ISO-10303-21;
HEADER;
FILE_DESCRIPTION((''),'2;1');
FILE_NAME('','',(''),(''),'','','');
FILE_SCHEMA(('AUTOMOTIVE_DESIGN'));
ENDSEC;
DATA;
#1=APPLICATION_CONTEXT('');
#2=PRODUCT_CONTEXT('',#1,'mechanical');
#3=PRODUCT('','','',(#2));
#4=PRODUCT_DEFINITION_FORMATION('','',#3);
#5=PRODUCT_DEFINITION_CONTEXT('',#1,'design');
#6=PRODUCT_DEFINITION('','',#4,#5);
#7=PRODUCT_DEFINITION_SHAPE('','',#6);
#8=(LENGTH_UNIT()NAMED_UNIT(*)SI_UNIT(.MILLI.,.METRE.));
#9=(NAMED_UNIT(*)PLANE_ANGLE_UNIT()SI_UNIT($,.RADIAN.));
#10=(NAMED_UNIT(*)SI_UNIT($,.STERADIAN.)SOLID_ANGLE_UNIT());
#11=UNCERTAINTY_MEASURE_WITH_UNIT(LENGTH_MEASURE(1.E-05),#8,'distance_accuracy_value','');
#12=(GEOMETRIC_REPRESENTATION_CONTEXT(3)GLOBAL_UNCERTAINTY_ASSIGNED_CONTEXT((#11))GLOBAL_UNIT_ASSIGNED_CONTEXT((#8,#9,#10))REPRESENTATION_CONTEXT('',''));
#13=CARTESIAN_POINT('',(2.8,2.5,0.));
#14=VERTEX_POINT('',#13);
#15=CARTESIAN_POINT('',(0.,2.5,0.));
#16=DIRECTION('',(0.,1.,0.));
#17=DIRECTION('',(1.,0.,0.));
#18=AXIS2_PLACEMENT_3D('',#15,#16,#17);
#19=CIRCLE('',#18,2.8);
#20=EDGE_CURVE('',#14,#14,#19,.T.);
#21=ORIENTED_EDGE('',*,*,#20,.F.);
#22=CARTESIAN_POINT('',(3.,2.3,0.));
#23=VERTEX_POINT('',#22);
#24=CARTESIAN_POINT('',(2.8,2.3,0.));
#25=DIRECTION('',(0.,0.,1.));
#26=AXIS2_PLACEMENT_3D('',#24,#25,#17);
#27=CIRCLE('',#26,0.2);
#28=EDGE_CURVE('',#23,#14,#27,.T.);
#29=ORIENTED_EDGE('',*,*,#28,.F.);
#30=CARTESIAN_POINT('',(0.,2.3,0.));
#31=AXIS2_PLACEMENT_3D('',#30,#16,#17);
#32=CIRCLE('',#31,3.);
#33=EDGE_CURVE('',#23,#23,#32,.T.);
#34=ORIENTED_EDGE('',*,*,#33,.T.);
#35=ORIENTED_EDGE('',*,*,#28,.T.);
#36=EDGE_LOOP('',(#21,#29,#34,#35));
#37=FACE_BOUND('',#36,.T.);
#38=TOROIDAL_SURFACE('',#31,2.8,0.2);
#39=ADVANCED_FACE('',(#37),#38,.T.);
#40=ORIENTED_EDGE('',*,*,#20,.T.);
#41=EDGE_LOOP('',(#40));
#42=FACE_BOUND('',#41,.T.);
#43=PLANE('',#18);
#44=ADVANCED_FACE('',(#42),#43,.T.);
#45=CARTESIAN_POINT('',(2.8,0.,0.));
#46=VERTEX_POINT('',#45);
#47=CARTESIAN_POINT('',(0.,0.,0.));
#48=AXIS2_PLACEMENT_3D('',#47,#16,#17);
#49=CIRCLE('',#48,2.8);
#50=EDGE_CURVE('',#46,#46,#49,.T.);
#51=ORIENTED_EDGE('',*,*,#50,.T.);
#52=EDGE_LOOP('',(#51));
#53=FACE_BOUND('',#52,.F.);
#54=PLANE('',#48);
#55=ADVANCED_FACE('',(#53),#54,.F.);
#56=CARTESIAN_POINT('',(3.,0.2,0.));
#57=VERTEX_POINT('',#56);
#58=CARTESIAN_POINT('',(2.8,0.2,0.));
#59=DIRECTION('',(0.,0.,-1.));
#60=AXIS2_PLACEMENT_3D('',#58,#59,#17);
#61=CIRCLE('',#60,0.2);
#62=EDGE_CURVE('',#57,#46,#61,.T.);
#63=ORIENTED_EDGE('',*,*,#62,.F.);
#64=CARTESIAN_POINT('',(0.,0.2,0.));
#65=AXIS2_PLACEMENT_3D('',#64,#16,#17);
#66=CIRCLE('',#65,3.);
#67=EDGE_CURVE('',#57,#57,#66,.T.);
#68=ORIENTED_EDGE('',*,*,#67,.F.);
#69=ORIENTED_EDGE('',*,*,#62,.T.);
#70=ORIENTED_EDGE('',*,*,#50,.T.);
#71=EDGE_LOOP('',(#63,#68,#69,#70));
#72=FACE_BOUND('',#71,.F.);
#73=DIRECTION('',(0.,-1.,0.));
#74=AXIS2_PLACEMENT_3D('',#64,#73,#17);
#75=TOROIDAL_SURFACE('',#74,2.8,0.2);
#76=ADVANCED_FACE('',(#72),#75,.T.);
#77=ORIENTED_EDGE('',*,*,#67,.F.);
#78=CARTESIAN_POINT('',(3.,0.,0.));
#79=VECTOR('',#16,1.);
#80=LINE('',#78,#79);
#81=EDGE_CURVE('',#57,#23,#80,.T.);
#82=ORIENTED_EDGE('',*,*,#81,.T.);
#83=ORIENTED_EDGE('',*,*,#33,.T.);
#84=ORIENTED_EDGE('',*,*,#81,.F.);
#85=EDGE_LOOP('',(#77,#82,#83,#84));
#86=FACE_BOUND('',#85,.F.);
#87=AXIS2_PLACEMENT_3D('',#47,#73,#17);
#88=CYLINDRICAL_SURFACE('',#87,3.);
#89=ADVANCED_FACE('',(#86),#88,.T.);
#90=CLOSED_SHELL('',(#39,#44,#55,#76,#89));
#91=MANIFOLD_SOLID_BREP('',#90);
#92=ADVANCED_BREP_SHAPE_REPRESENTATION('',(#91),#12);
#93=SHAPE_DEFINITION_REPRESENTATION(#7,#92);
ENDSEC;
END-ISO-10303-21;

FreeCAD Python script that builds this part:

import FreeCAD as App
import Part
import Sketcher


def edges_at(feature, points):
    """Names of the edges that pass closest to the given points."""
    edges = feature.Shape.Edges
    near = lambda p: min(range(len(edges)), key=lambda i: edges[i].distToShape(Part.Vertex(*p))[0])
    return sorted({f"Edge{near(p) + 1}" for p in points})

doc = App.newDocument("Part")
params = doc.addObject("Spreadsheet::Sheet", "Params")
for row, (alias, value) in enumerate([
    ("sketch1_diameter", "6 mm"),
    ("pad1_length", "2.5 mm"),
    ("fillet_radius", "0.2 mm"),
], start=1):
    params.set(f"A{row}", alias)
    params.set(f"B{row}", "=" + value)
    params.setAlias(f"B{row}", alias)

body = doc.addObject("PartDesign::Body", "Body")

sketch1 = body.newObject("Sketcher::SketchObject", "Sketch")
sketch1.AttachmentSupport = (doc.getObject("XZ_Plane"), [""])
sketch1.MapMode = "FlatFace"
sketch1.addGeometry(Part.Circle(App.Vector(0, 0, 0), App.Vector(0, 0, 1), 3), False)
sketch1.addConstraint(Sketcher.Constraint("Coincident", 0, 3, -1, 1))
sketch1.addConstraint(Sketcher.Constraint("Diameter", 0, 6.0))
sketch1.setExpression("Constraints[1]", "Params.sketch1_diameter")
pad1 = body.newObject("PartDesign::Pad", "Pad")
pad1.Profile = sketch1
pad1.setExpression("Length", "Params.pad1_length")
pad1.Reversed = True
doc.recompute()

fillet = body.newObject("PartDesign::Fillet", "Fillet")
fillet.Base = (pad1, edges_at(pad1, [(-3, 0, 0), (-3, 2.5, 0)]))
fillet.setExpression("Radius", "Params.fillet_radius")

doc.recompute()
